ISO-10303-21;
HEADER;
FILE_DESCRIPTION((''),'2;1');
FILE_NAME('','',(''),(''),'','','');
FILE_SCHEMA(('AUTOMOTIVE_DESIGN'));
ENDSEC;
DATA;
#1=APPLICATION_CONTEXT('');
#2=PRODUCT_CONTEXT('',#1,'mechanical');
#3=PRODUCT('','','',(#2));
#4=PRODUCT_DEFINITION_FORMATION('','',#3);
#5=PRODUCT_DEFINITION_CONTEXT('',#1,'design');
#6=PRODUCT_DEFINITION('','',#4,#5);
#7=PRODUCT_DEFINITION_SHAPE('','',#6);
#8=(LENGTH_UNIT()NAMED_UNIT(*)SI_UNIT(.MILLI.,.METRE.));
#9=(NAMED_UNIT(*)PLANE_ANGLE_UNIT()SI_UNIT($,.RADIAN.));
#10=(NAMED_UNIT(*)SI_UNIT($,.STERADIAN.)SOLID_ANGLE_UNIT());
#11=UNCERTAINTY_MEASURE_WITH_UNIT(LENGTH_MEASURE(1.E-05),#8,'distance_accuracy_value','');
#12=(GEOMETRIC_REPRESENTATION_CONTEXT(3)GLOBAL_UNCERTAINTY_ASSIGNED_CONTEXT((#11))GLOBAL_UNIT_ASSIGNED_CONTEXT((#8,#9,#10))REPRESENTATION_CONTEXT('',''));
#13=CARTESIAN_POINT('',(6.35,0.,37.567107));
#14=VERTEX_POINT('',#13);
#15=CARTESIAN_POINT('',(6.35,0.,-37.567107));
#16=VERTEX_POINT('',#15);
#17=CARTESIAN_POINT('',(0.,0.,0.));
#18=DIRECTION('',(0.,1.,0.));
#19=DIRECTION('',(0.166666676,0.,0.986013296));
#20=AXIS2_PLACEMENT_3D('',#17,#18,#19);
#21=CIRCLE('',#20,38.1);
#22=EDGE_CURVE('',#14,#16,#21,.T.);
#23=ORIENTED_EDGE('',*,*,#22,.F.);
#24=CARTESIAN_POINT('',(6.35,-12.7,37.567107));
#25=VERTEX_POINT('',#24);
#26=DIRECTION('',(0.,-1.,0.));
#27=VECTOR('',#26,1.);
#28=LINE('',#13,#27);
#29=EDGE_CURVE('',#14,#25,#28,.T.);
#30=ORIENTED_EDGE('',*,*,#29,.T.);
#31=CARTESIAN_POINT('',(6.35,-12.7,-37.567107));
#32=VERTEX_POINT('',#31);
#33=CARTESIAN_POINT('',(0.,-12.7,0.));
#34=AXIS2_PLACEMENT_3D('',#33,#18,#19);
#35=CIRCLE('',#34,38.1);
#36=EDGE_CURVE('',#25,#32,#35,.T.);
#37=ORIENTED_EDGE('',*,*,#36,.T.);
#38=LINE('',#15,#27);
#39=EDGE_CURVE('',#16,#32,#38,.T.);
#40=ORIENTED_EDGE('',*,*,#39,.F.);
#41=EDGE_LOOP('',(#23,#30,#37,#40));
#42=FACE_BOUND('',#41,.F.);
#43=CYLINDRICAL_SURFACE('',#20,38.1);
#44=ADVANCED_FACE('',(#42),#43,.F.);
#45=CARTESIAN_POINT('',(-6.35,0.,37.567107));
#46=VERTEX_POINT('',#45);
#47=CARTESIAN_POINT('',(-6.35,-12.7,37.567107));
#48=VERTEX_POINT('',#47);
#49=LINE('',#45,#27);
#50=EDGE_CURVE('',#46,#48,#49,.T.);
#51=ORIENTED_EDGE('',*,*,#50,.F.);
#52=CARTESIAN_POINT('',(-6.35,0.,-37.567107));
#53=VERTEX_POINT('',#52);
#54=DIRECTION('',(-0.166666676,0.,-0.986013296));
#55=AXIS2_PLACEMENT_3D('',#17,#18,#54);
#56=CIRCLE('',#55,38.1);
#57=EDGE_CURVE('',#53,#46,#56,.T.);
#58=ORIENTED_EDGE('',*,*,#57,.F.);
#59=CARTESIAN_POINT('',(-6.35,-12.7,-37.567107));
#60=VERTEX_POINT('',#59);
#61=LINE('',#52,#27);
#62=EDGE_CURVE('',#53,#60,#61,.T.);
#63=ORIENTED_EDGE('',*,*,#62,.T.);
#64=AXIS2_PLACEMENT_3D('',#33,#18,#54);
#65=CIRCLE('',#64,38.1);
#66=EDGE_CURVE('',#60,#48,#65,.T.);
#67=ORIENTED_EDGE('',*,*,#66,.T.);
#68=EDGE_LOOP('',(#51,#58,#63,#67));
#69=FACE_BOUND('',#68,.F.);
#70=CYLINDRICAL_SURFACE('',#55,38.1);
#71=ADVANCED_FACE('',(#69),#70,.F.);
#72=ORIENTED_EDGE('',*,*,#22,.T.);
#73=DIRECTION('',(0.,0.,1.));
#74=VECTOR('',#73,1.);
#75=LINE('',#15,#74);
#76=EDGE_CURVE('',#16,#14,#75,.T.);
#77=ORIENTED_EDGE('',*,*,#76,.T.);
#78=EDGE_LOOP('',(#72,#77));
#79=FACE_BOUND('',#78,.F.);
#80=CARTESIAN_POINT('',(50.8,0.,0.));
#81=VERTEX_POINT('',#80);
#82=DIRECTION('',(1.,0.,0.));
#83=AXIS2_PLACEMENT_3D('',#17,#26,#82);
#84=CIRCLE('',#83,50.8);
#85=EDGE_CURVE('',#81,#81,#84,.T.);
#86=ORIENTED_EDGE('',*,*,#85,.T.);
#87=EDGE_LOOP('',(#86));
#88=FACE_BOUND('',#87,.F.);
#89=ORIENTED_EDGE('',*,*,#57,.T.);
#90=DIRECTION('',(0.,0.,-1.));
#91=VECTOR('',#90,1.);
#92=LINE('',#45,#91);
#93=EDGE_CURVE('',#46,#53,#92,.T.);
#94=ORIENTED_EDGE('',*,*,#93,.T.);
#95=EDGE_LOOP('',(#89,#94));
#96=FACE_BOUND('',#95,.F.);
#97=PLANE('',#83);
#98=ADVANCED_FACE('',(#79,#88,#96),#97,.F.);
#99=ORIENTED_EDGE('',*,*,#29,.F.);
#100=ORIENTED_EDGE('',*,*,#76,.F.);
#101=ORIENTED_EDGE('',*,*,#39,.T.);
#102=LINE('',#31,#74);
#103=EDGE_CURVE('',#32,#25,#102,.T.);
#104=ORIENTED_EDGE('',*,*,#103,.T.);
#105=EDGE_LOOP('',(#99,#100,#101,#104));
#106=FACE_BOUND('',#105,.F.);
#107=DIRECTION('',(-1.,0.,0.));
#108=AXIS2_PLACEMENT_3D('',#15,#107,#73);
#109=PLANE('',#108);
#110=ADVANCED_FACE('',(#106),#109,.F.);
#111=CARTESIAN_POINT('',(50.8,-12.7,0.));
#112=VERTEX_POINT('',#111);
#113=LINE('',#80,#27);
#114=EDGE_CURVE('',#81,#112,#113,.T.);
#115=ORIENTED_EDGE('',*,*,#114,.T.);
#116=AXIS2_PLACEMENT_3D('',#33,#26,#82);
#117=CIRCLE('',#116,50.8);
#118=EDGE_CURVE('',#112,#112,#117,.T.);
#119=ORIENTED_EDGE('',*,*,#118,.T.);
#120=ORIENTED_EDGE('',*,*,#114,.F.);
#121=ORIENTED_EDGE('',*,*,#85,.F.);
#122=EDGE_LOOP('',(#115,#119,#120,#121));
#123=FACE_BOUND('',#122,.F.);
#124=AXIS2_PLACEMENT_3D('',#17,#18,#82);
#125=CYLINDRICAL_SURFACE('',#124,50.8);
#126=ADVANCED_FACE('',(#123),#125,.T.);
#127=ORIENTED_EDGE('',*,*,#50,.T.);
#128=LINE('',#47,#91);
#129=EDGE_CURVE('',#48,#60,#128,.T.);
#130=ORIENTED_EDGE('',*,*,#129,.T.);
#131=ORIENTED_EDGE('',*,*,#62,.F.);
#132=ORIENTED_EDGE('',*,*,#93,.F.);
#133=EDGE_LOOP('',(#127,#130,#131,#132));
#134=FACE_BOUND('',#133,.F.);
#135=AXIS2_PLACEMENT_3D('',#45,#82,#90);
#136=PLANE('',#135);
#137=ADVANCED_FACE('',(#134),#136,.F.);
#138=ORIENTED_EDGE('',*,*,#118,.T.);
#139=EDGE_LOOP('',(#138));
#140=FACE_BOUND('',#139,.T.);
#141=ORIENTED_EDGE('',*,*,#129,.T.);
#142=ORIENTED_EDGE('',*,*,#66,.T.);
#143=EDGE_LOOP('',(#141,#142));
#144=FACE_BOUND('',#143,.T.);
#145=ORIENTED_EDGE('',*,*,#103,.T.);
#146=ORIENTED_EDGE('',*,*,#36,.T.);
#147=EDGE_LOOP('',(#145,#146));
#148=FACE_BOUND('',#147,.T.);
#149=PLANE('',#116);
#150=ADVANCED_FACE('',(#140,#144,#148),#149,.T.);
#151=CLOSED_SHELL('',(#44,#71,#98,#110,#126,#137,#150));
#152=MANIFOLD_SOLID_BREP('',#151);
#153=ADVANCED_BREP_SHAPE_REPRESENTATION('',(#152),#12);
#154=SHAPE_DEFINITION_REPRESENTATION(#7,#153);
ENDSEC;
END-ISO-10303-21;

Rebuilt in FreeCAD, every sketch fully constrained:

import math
import FreeCAD as App
import Part
import Sketcher
Q = App.Units.Quantity

doc = App.newDocument("Part")
body = doc.addObject("PartDesign::Body", "Body")

# Sketch on XZ plane
sketch1 = body.newObject("Sketcher::SketchObject", "Sketch")
sketch1.AttachmentSupport = (doc.getObject("XZ_Plane"), [""])
sketch1.MapMode = "FlatFace"
sketch1.addGeometry([
    Part.Circle(App.Vector(0, 0, 0), App.Vector(0, 0, 1), 50.8),  # 0
    Part.LineSegment(App.Vector(-6.35, 37.567107, 0), App.Vector(-6.35, -37.567107, 0)),  # 1
    Part.ArcOfCircle(Part.Circle(App.Vector(0, 0, 0), App.Vector(0, 0, 1), 38.1), math.radians(99.594069), math.radians(260.405931)),  # 2
    Part.ArcOfCircle(Part.Circle(App.Vector(0, 0, 0), App.Vector(0, 0, 1), 38.1), math.radians(-80.405931), math.radians(80.405931)),  # 3
    Part.LineSegment(App.Vector(6.35, -37.567107, 0), App.Vector(6.35, 37.567107, 0)),  # 4
], False)
sketch1.addConstraint([
    Sketcher.Constraint("Coincident", 1, 1, 2, 1),
    Sketcher.Constraint("Coincident", 2, 2, 1, 2),
    Sketcher.Constraint("Coincident", 3, 1, 4, 1),
    Sketcher.Constraint("Coincident", 4, 2, 3, 2),
    Sketcher.Constraint("Vertical", 1),
    Sketcher.Constraint("Vertical", 4),
    Sketcher.Constraint("Coincident", 0, 3, -1, 1),
    Sketcher.Constraint("Coincident", 2, 3, -1, 1),
    Sketcher.Constraint("Coincident", 3, 3, -1, 1),
    Sketcher.Constraint("Equal", 2, 3),
    Sketcher.Constraint("Horizontal", 2, 2, 3, 1),
    Sketcher.Constraint("Diameter", 0, Q("4 in")),
    Sketcher.Constraint("Radius", 2, Q("1.5 in")),
    Sketcher.Constraint("DistanceX", 2, 2, 3, 1, Q("0.5 in")),
])
pad1 = body.newObject("PartDesign::Pad", "Pad")
pad1.Profile = sketch1
pad1.Length = Q("0.5 in")

doc.recompute()
